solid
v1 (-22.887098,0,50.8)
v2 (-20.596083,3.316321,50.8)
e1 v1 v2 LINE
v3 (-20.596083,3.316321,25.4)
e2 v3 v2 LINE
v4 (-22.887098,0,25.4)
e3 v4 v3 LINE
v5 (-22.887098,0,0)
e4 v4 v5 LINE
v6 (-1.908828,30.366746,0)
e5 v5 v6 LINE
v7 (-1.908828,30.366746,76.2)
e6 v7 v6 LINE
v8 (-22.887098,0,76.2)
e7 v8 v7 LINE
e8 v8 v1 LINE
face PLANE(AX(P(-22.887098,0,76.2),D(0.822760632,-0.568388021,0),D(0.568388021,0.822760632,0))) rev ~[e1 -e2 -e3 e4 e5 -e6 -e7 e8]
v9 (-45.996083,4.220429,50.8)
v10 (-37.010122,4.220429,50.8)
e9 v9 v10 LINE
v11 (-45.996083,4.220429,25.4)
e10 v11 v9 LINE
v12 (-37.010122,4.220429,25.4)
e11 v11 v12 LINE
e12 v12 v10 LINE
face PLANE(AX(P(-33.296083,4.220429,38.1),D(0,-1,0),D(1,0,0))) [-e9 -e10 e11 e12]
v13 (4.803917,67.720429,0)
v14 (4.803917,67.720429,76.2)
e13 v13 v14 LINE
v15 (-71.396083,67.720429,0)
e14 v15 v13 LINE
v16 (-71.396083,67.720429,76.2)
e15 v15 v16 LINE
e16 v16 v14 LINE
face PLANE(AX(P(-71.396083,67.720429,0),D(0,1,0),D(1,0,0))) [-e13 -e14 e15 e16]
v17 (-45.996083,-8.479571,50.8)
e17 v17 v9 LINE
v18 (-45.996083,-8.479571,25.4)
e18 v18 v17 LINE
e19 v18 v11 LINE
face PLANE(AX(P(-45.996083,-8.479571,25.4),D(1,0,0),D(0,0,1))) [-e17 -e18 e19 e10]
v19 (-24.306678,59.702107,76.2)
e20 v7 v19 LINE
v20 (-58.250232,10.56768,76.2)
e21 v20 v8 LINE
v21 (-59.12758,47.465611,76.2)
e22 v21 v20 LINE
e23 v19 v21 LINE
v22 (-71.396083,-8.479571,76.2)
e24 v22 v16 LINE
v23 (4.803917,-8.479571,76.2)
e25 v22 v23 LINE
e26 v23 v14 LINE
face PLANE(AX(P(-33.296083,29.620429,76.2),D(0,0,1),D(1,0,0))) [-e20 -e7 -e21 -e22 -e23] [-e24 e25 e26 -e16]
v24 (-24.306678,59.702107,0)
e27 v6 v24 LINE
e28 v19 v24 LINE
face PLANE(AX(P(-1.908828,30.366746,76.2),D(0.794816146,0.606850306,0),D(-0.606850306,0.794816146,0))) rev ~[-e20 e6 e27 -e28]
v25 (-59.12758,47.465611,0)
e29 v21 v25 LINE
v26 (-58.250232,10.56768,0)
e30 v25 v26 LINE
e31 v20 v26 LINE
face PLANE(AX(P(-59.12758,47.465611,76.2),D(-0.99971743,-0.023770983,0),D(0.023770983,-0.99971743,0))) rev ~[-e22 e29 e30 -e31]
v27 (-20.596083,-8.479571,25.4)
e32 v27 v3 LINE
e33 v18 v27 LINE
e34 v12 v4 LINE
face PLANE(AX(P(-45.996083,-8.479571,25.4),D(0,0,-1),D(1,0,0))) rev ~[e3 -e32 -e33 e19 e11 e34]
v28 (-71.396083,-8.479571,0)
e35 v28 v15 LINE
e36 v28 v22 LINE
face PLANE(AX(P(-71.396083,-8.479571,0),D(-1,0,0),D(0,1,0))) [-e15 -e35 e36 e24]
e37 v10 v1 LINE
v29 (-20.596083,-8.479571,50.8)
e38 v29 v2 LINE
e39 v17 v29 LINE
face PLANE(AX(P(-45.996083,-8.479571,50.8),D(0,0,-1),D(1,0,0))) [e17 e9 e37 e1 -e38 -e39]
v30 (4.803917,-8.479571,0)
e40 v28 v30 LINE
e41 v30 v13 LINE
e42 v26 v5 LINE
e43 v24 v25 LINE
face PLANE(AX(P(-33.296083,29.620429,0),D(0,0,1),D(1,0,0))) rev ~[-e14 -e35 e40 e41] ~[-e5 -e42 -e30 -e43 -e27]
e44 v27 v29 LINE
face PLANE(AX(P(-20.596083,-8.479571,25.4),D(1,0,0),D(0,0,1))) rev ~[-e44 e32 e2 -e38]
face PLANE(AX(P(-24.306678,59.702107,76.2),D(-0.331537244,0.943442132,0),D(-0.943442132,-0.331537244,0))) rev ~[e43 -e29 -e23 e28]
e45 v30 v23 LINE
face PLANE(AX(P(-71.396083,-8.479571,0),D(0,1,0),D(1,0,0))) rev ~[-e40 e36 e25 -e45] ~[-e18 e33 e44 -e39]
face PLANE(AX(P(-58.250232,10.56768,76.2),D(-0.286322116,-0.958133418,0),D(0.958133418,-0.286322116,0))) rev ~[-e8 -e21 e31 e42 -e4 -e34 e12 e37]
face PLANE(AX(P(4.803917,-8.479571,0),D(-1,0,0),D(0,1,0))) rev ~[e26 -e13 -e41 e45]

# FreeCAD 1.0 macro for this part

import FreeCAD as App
import Part
import Sketcher
Q = App.Units.Quantity


def add_polygon(sketch, points):
    """Adds a closed chain of lines whose ends are joined by coincident constraints."""
    first, n = sketch.GeometryCount, len(points)
    for a, b in zip(points, points[1:] + points[:1]):
        sketch.addGeometry(Part.LineSegment(App.Vector(*a, 0), App.Vector(*b, 0)), False)
    for i in range(n):
        sketch.addConstraint(Sketcher.Constraint("Coincident", first + i, 2, first + (i + 1) % n, 1))

doc = App.newDocument("Part")
body = doc.addObject("PartDesign::Body", "Body")

# Sketch on XY plane
sketch1 = body.newObject("Sketcher::SketchObject", "Sketch")
sketch1.AttachmentSupport = (doc.getObject("XY_Plane"), [""])
sketch1.MapMode = "FlatFace"
add_polygon(sketch1, [(-71, 68), (-71, -8), (5, -8), (5, 68)])  # lines 0-3
sketch1.addConstraint([
    Sketcher.Constraint("Vertical", 0),
    Sketcher.Constraint("Horizontal", 1),
    Sketcher.Constraint("Vertical", 2),
    Sketcher.Constraint("Horizontal", 3),
    Sketcher.Constraint("Equal", 3, 0),
    Sketcher.Constraint("DistanceX", 1, 1, 1, 2, Q("3 in")),
    Sketcher.Constraint("DistanceY", 0, 2, -1, 1, 8.479571),
    Sketcher.Constraint("DistanceX", 0, 2, -1, 1, 71.396083),
])
pad1 = body.newObject("PartDesign::Pad", "Pad")
pad1.Profile = sketch1
pad1.Length = Q("3 in")

# Sketch on XY plane
sketch2 = body.newObject("Sketcher::SketchObject", "Sketch001")
sketch2.AttachmentSupport = (doc.getObject("XY_Plane"), [""])
sketch2.MapMode = "FlatFace"
sketch2.AttachmentOffset = App.Placement(App.Vector(0, 0, 3 * 25.4), App.Rotation())
add_polygon(sketch2, [(-23, 0), (-2, 30), (-24, 60), (-59, 47), (-58, 11)])  # lines 0-4
sketch2.addConstraint([
    Sketcher.Constraint("PointOnObject", 4, 2, -1),
    Sketcher.Constraint("Equal", 0, 1),
    Sketcher.Constraint("Equal", 1, 2),
    Sketcher.Constraint("Equal", 2, 3),
    Sketcher.Constraint("Equal", 3, 4),
    Sketcher.Constraint("DistanceX", 4, 2, -1, 1, 22.887098),
    Sketcher.Constraint("Distance", 0, 36.908361),
    Sketcher.Constraint("DistanceX", 1, 2, -1, 1, 24.306678),
    Sketcher.Constraint("DistanceX", 2, 2, -1, 1, 59.12758),
    Sketcher.Constraint("DistanceY", -1, 1, 2, 2, 47.465611),
])
pocket1 = body.newObject("PartDesign::Pocket", "Pocket")
pocket1.Profile = sketch2
pocket1.Type = "ThroughAll"

# Sketch on XZ plane
sketch3 = body.newObject("Sketcher::SketchObject", "Sketch002")
sketch3.AttachmentSupport = (doc.getObject("XZ_Plane"), [""])
sketch3.MapMode = "FlatFace"
sketch3.AttachmentOffset = App.Placement(App.Vector(0, 0, 8.479571), App.Rotation())
add_polygon(sketch3, [(-46, 51), (-46, 25), (-21, 25), (-21, 51)])  # lines 0-3
sketch3.addConstraint([
    Sketcher.Constraint("Vertical", 0),
    Sketcher.Constraint("Horizontal", 1),
    Sketcher.Constraint("Vertical", 2),
    Sketcher.Constraint("Horizontal", 3),
    Sketcher.Constraint("Equal", 3, 0),
    Sketcher.Constraint("DistanceX", 1, 1, 1, 2, Q("1 in")),
    Sketcher.Constraint("DistanceY", -1, 1, 0, 2, Q("1 in")),
    Sketcher.Constraint("DistanceX", 0, 2, -1, 1, 45.996083),
])
pocket2 = body.newObject("PartDesign::Pocket", "Pocket001")
pocket2.Profile = sketch3
pocket2.Length = Q("0.5 in")

doc.recompute()
